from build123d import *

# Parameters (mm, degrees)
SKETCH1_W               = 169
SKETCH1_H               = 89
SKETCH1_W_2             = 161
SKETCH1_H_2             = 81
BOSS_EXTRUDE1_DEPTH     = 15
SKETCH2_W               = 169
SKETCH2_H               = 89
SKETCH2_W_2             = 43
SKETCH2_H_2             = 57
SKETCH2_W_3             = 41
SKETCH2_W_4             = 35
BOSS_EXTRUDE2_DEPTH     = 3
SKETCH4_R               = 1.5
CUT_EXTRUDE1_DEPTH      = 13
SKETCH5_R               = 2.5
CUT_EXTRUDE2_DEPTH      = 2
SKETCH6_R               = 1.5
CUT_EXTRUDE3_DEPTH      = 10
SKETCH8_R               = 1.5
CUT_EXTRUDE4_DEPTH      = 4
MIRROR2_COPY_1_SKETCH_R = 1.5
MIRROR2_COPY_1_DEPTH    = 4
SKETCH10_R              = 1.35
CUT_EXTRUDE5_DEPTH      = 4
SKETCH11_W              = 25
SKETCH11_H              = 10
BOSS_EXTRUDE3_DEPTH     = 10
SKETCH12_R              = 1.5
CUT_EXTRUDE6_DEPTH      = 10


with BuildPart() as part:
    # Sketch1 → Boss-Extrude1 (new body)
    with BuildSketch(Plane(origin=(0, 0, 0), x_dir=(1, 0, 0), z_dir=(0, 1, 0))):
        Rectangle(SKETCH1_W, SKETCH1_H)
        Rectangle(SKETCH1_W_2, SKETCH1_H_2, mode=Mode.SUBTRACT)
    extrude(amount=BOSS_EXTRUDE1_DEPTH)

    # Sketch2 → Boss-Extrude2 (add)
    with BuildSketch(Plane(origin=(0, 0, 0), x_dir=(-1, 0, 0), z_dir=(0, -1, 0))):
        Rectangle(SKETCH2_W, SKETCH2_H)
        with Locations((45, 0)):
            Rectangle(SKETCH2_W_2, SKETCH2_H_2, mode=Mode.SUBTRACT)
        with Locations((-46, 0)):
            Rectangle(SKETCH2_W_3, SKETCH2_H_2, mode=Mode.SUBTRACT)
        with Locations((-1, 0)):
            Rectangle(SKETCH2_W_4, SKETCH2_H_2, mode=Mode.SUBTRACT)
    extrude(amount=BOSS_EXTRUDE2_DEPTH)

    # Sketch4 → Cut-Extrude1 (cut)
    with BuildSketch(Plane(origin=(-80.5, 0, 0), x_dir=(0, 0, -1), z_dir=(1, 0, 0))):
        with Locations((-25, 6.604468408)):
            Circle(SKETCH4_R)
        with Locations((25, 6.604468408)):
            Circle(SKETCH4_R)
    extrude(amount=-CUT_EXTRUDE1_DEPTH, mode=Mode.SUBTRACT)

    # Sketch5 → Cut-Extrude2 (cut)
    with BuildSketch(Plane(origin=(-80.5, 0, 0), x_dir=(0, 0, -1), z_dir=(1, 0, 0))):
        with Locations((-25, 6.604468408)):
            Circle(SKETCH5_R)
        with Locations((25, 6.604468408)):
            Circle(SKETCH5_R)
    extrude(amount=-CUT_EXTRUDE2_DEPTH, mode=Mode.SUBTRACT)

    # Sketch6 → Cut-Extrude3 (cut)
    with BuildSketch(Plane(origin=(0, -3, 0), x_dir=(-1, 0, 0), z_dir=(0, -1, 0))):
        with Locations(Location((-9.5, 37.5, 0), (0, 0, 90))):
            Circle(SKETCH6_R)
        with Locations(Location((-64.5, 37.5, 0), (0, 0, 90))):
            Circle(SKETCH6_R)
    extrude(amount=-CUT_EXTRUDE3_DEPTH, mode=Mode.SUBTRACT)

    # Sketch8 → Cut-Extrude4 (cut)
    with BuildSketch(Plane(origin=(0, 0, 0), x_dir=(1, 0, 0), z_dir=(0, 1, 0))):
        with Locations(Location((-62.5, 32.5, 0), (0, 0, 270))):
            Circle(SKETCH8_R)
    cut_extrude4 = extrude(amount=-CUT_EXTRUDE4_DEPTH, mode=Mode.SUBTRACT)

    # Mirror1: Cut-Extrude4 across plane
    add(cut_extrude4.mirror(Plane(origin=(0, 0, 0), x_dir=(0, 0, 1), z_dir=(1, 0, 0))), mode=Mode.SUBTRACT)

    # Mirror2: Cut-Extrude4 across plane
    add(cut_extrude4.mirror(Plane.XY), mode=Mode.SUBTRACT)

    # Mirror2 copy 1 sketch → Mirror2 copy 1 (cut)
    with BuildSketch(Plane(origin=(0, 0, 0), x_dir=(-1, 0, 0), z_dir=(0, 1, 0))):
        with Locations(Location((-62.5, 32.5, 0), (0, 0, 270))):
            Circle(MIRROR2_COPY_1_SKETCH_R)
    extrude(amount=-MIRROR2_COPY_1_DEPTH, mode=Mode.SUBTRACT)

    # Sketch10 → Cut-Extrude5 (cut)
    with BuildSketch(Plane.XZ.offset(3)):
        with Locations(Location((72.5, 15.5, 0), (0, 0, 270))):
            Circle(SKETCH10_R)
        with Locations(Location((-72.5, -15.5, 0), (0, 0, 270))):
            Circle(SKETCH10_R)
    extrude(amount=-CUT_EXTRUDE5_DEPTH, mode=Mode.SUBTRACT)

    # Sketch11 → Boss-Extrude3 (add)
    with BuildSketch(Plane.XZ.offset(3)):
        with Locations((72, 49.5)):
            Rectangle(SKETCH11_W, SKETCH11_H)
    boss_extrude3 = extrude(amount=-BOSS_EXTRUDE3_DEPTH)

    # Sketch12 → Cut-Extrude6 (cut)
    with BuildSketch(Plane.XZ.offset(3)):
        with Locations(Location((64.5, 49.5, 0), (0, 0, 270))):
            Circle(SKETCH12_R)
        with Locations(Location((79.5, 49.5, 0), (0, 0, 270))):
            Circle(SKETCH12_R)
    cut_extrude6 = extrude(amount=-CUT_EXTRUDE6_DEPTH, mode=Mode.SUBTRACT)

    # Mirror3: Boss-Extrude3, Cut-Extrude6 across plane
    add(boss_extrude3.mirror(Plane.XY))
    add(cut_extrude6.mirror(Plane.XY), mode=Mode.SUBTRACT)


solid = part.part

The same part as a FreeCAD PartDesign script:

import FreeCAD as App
import Part
import Sketcher


def add_polygon(sketch, points):
    """Adds a closed chain of lines whose ends are joined by coincident constraints."""
    first, n = sketch.GeometryCount, len(points)
    for a, b in zip(points, points[1:] + points[:1]):
        sketch.addGeometry(Part.LineSegment(App.Vector(*a, 0), App.Vector(*b, 0)), False)
    for i in range(n):
        sketch.addConstraint(Sketcher.Constraint("Coincident", first + i, 2, first + (i + 1) % n, 1))

doc = App.newDocument("Part")
params = doc.addObject("Spreadsheet::Sheet", "Params")
for row, (alias, value) in enumerate([
    ("sketch1_width", "169 mm"),
    ("sketch1_width2", "161 mm"),
    ("sketch1_height", "89 mm"),
    ("sketch1_height2", "81 mm"),
    ("pad1_length", "15 mm"),
    ("sketch2_width", "169 mm"),
    ("sketch2_width2", "41 mm"),
    ("sketch2_width3", "35 mm"),
    ("sketch2_width4", "43 mm"),
    ("sketch2_height", "89 mm"),
    ("pad2_length", "3 mm"),
    ("sketch3_diameter", "3 mm"),
    ("pocket1_length", "13 mm"),
    ("sketch4_diameter", "5 mm"),
    ("pocket2_length", "2 mm"),
    ("sketch5_diameter", "3 mm"),
    ("pocket3_length", "10 mm"),
    ("sketch6_diameter", "3 mm"),
    ("pocket4_length", "4 mm"),
    ("sketch7_diameter", "3 mm"),
    ("pocket5_length", "4 mm"),
    ("sketch8_diameter", "2.7 mm"),
    ("pocket6_length", "4 mm"),
    ("sketch9_width", "25 mm"),
    ("sketch9_height", "10 mm"),
    ("pad3_length", "10 mm"),
    ("sketch10_diameter", "3 mm"),
    ("pocket7_length", "10 mm"),
], start=1):
    params.set(f"A{row}", alias)
    params.set(f"B{row}", "=" + value)
    params.setAlias(f"B{row}", alias)

body = doc.addObject("PartDesign::Body", "Body")

sketch1 = body.newObject("Sketcher::SketchObject", "Sketch")
sketch1.AttachmentSupport = (doc.getObject("XZ_Plane"), [""])
sketch1.MapMode = "FlatFace"
add_polygon(sketch1, [(-84, -44), (-84, 44), (84, 44), (84, -44)])
add_polygon(sketch1, [(80, 40), (-80, 40), (-80, -40), (80, -40)])
sketch1.addConstraint(Sketcher.Constraint("Vertical", 0))
sketch1.addConstraint(Sketcher.Constraint("Horizontal", 1))
sketch1.addConstraint(Sketcher.Constraint("Vertical", 2))
sketch1.addConstraint(Sketcher.Constraint("Horizontal", 3))
sketch1.addConstraint(Sketcher.Constraint("Horizontal", 4))
sketch1.addConstraint(Sketcher.Constraint("Vertical", 5))
sketch1.addConstraint(Sketcher.Constraint("Horizontal", 6))
sketch1.addConstraint(Sketcher.Constraint("Vertical", 7))
sketch1.addConstraint(Sketcher.Constraint("Symmetric", 0, 2, 2, 2, -1, 1))
sketch1.addConstraint(Sketcher.Constraint("Symmetric", 4, 2, 6, 2, -1, 1))
sketch1.addConstraint(Sketcher.Constraint("DistanceX", 1, 1, 1, 2, 169.0))
sketch1.addConstraint(Sketcher.Constraint("DistanceX", 4, 2, 4, 1, 161.0))
sketch1.addConstraint(Sketcher.Constraint("DistanceY", 0, 1, 0, 2, 89.0))
sketch1.addConstraint(Sketcher.Constraint("DistanceY", 5, 2, 5, 1, 81.0))
sketch1.setExpression("Constraints[18]", "Params.sketch1_width")
sketch1.setExpression("Constraints[19]", "Params.sketch1_width2")
sketch1.setExpression("Constraints[20]", "Params.sketch1_height")
sketch1.setExpression("Constraints[21]", "Params.sketch1_height2")
pad1 = body.newObject("PartDesign::Pad", "Pad")
pad1.Profile = sketch1
pad1.setExpression("Length", "Params.pad1_length")
pad1.Reversed = True

sketch2 = body.newObject("Sketcher::SketchObject", "Sketch001")
sketch2.AttachmentSupport = (doc.getObject("XZ_Plane"), [""])
sketch2.MapMode = "FlatFace"
add_polygon(sketch2, [(84, -44), (84, 44), (-84, 44), (-84, -44)])
add_polygon(sketch2, [(26, 28), (66, 28), (66, -28), (26, -28)])
add_polygon(sketch2, [(-16, 28), (18, 28), (18, -28), (-16, -28)])
add_polygon(sketch2, [(-66, 28), (-24, 28), (-24, -28), (-66, -28)])
sketch2.addConstraint(Sketcher.Constraint("Vertical", 0))
sketch2.addConstraint(Sketcher.Constraint("Horizontal", 1))
sketch2.addConstraint(Sketcher.Constraint("Vertical", 2))
sketch2.addConstraint(Sketcher.Constraint("Horizontal", 3))
sketch2.addConstraint(Sketcher.Constraint("Horizontal", 4))
sketch2.addConstraint(Sketcher.Constraint("Vertical", 5))
sketch2.addConstraint(Sketcher.Constraint("Horizontal", 6))
sketch2.addConstraint(Sketcher.Constraint("Vertical", 7))
sketch2.addConstraint(Sketcher.Constraint("Horizontal", 8))
sketch2.addConstraint(Sketcher.Constraint("Vertical", 9))
sketch2.addConstraint(Sketcher.Constraint("Horizontal", 10))
sketch2.addConstraint(Sketcher.Constraint("Vertical", 11))
sketch2.addConstraint(Sketcher.Constraint("Horizontal", 12))
sketch2.addConstraint(Sketcher.Constraint("Vertical", 13))
sketch2.addConstraint(Sketcher.Constraint("Horizontal", 14))
sketch2.addConstraint(Sketcher.Constraint("Vertical", 15))
sketch2.addConstraint(Sketcher.Constraint("Symmetric", 0, 2, 2, 2, -1, 1))
sketch2.addConstraint(Sketcher.Constraint("Symmetric", 4, 2, 14, 2, -1, 1))
sketch2.addConstraint(Sketcher.Constraint("Horizontal", 7, 2, 8, 2))
sketch2.addConstraint(Sketcher.Constraint("Horizontal", 6, 2, 9, 2))
sketch2.addConstraint(Sketcher.Constraint("Horizontal", 11, 2, 12, 2))
sketch2.addConstraint(Sketcher.Constraint("Horizontal", 10, 2, 13, 2))
sketch2.addConstraint(Sketcher.Constraint("DistanceX", 1, 2, 1, 1, 169.0))
sketch2.addConstraint(Sketcher.Constraint("DistanceX", 4, 1, 4, 2, 41.0))
sketch2.addConstraint(Sketcher.Constraint("DistanceX", 8, 1, 8, 2, 35.0))
sketch2.addConstraint(Sketcher.Constraint("DistanceX", 12, 1, 12, 2, 43.0))
sketch2.addConstraint(Sketcher.Constraint("DistanceY", 0, 1, 0, 2, 89.0))
sketch2.addConstraint(Sketcher.Constraint("DistanceY", 5, 2, 5, 1, 57.0))
sketch2.addConstraint(Sketcher.Constraint("DistanceX", 4, 2, 0, 2, 18.0))
sketch2.addConstraint(Sketcher.Constraint("DistanceX", 8, 2, 7, 2, 7.0))
sketch2.setExpression("Constraints[38]", "Params.sketch2_width")
sketch2.setExpression("Constraints[39]", "Params.sketch2_width2")
sketch2.setExpression("Constraints[40]", "Params.sketch2_width3")
sketch2.setExpression("Constraints[41]", "Params.sketch2_width4")
sketch2.setExpression("Constraints[42]", "Params.sketch2_height")
pad2 = body.newObject("PartDesign::Pad", "Pad001")
pad2.Profile = sketch2
pad2.setExpression("Length", "Params.pad2_length")

sketch3 = body.newObject("Sketcher::SketchObject", "Sketch002")
sketch3.AttachmentSupport = (doc.getObject("YZ_Plane"), [""])
sketch3.MapMode = "FlatFace"
sketch3.AttachmentOffset = App.Placement(App.Vector(0, 0, -80.5), App.Rotation())
sketch3.addGeometry(Part.Circle(App.Vector(6.6, 25, 0), App.Vector(0, 0, 1), 1.5), False)
sketch3.addGeometry(Part.Circle(App.Vector(6.6, -25, 0), App.Vector(0, 0, 1), 1.5), False)
sketch3.addConstraint(Sketcher.Constraint("Equal", 0, 1))
sketch3.addConstraint(Sketcher.Constraint("Symmetric", 0, 3, 1, 3, -1))
sketch3.addConstraint(Sketcher.Constraint("Diameter", 0, 3.0))
sketch3.addConstraint(Sketcher.Constraint("DistanceY", -1, 1, 0, 3, 25.0))
sketch3.addConstraint(Sketcher.Constraint("DistanceX", -1, 1, 0, 3, 6.604468))
sketch3.setExpression("Constraints[2]", "Params.sketch3_diameter")
pocket1 = body.newObject("PartDesign::Pocket", "Pocket")
pocket1.Profile = sketch3
pocket1.setExpression("Length", "Params.pocket1_length")

sketch4 = body.newObject("Sketcher::SketchObject", "Sketch003")
sketch4.AttachmentSupport = (doc.getObject("YZ_Plane"), [""])
sketch4.MapMode = "FlatFace"
sketch4.AttachmentOffset = App.Placement(App.Vector(0, 0, -80.5), App.Rotation())
sketch4.addGeometry(Part.Circle(App.Vector(6.6, 25, 0), App.Vector(0, 0, 1), 2.5), False)
sketch4.addGeometry(Part.Circle(App.Vector(6.6, -25, 0), App.Vector(0, 0, 1), 2.5), False)
sketch4.addConstraint(Sketcher.Constraint("Equal", 0, 1))
sketch4.addConstraint(Sketcher.Constraint("Symmetric", 0, 3, 1, 3, -1))
sketch4.addConstraint(Sketcher.Constraint("Diameter", 0, 5.0))
sketch4.addConstraint(Sketcher.Constraint("DistanceY", -1, 1, 0, 3, 25.0))
sketch4.addConstraint(Sketcher.Constraint("DistanceX", -1, 1, 0, 3, 6.604468))
sketch4.setExpression("Constraints[2]", "Params.sketch4_diameter")
pocket2 = body.newObject("PartDesign::Pocket", "Pocket001")
pocket2.Profile = sketch4
pocket2.setExpression("Length", "Params.pocket2_length")

sketch5 = body.newObject("Sketcher::SketchObject", "Sketch004")
sketch5.AttachmentSupport = (doc.getObject("XZ_Plane"), [""])
sketch5.MapMode = "FlatFace"
sketch5.AttachmentOffset = App.Placement(App.Vector(0, 0, 3), App.Rotation())
sketch5.addGeometry(Part.Circle(App.Vector(9.5, -37.5, 0), App.Vector(0, 0, 1), 1.5), False)
sketch5.addGeometry(Part.Circle(App.Vector(64.5, -37.5, 0), App.Vector(0, 0, 1), 1.5), False)
sketch5.addConstraint(Sketcher.Constraint("Equal", 0, 1))
sketch5.addConstraint(Sketcher.Constraint("Horizontal", 0, 3, 1, 3))
sketch5.addConstraint(Sketcher.Constraint("Diameter", 0, 3.0))
sketch5.addConstraint(Sketcher.Constraint("DistanceX", 0, 3, 1, 3, 55.0))
sketch5.addConstraint(Sketcher.Constraint("DistanceX", -1, 1, 0, 3, 9.5))
sketch5.addConstraint(Sketcher.Constraint("DistanceY", 0, 3, -1, 1, 37.5))
sketch5.setExpression("Constraints[2]", "Params.sketch5_diameter")
pocket3 = body.newObject("PartDesign::Pocket", "Pocket002")
pocket3.Profile = sketch5
pocket3.setExpression("Length", "Params.pocket3_length")

sketch6 = body.newObject("Sketcher::SketchObject", "Sketch005")
sketch6.AttachmentSupport = (doc.getObject("XZ_Plane"), [""])
sketch6.MapMode = "FlatFace"
sketch6.addGeometry(Part.Circle(App.Vector(-62.5, -32.5, 0), App.Vector(0, 0, 1), 1.5), False)
sketch6.addConstraint(Sketcher.Constraint("Diameter", 0, 3.0))
sketch6.addConstraint(Sketcher.Constraint("DistanceX", 0, 3, -1, 1, 62.5))
sketch6.addConstraint(Sketcher.Constraint("DistanceY", 0, 3, -1, 1, 32.5))
sketch6.setExpression("Constraints[0]", "Params.sketch6_diameter")
pocket4 = body.newObject("PartDesign::Pocket", "Pocket003")
pocket4.Profile = sketch6
pocket4.setExpression("Length", "Params.pocket4_length")
pocket4.Reversed = True
doc.recompute()

mirrored = body.newObject("PartDesign::Mirrored", "Mirrored")
mirrored.Originals = [pocket4]
mirrored.MirrorPlane = (doc.getObject("YZ_Plane"), [""])
body.Tip = mirrored
doc.recompute()

mirrored2 = body.newObject("PartDesign::Mirrored", "Mirrored001")
mirrored2.Originals = [pocket4]
mirrored2.MirrorPlane = (doc.getObject("XY_Plane"), [""])
body.Tip = mirrored2

sketch7 = body.newObject("Sketcher::SketchObject", "Sketch006")
sketch7.AttachmentSupport = (doc.getObject("XZ_Plane"), [""])
sketch7.MapMode = "FlatFace"
sketch7.addGeometry(Part.Circle(App.Vector(62.5, 32.5, 0), App.Vector(0, 0, 1), 1.5), False)
sketch7.addConstraint(Sketcher.Constraint("Diameter", 0, 3.0))
sketch7.addConstraint(Sketcher.Constraint("DistanceX", -1, 1, 0, 3, 62.5))
sketch7.addConstraint(Sketcher.Constraint("DistanceY", -1, 1, 0, 3, 32.5))
sketch7.setExpression("Constraints[0]", "Params.sketch7_diameter")
pocket5 = body.newObject("PartDesign::Pocket", "Pocket004")
pocket5.Profile = sketch7
pocket5.setExpression("Length", "Params.pocket5_length")
pocket5.Reversed = True

sketch8 = body.newObject("Sketcher::SketchObject", "Sketch007")
sketch8.AttachmentSupport = (doc.getObject("XZ_Plane"), [""])
sketch8.MapMode = "FlatFace"
sketch8.AttachmentOffset = App.Placement(App.Vector(0, 0, 3), App.Rotation())
sketch8.addGeometry(Part.Circle(App.Vector(72.5, 15.5, 0), App.Vector(0, 0, 1), 1.4), False)
sketch8.addGeometry(Part.Circle(App.Vector(-72.5, -15.5, 0), App.Vector(0, 0, 1), 1.4), False)
sketch8.addConstraint(Sketcher.Constraint("Equal", 0, 1))
sketch8.addConstraint(Sketcher.Constraint("Symmetric", 0, 3, 1, 3, -1, 1))
sketch8.addConstraint(Sketcher.Constraint("Diameter", 0, 2.7))
sketch8.addConstraint(Sketcher.Constraint("DistanceX", 1, 3, 0, 3, 145.0))
sketch8.addConstraint(Sketcher.Constraint("DistanceY", 1, 3, 0, 3, 31.0))
sketch8.setExpression("Constraints[2]", "Params.sketch8_diameter")
pocket6 = body.newObject("PartDesign::Pocket", "Pocket005")
pocket6.Profile = sketch8
pocket6.setExpression("Length", "Params.pocket6_length")

sketch9 = body.newObject("Sketcher::SketchObject", "Sketch008")
sketch9.AttachmentSupport = (doc.getObject("XZ_Plane"), [""])
sketch9.MapMode = "FlatFace"
sketch9.AttachmentOffset = App.Placement(App.Vector(0, 0, 3), App.Rotation())
add_polygon(sketch9, [(60, 54), (60, 44), (84, 44), (84, 54)])
sketch9.addConstraint(Sketcher.Constraint("Vertical", 0))
sketch9.addConstraint(Sketcher.Constraint("Horizontal", 1))
sketch9.addConstraint(Sketcher.Constraint("Vertical", 2))
sketch9.addConstraint(Sketcher.Constraint("Horizontal", 3))
sketch9.addConstraint(Sketcher.Constraint("DistanceX", 1, 1, 1, 2, 25.0))
sketch9.addConstraint(Sketcher.Constraint("DistanceY", 0, 2, 0, 1, 10.0))
sketch9.addConstraint(Sketcher.Constraint("DistanceX", -1, 1, 0, 2, 59.5))
sketch9.addConstraint(Sketcher.Constraint("DistanceY", -1, 1, 0, 2, 44.5))
sketch9.setExpression("Constraints[8]", "Params.sketch9_width")
sketch9.setExpression("Constraints[9]", "Params.sketch9_height")
pad3 = body.newObject("PartDesign::Pad", "Pad002")
pad3.Profile = sketch9
pad3.setExpression("Length", "Params.pad3_length")
pad3.Reversed = True

sketch10 = body.newObject("Sketcher::SketchObject", "Sketch009")
sketch10.AttachmentSupport = (doc.getObject("XZ_Plane"), [""])
sketch10.MapMode = "FlatFace"
sketch10.AttachmentOffset = App.Placement(App.Vector(0, 0, 3), App.Rotation())
sketch10.addGeometry(Part.Circle(App.Vector(64.5, 49.5, 0), App.Vector(0, 0, 1), 1.5), False)
sketch10.addGeometry(Part.Circle(App.Vector(79.5, 49.5, 0), App.Vector(0, 0, 1), 1.5), False)
sketch10.addConstraint(Sketcher.Constraint("Equal", 0, 1))
sketch10.addConstraint(Sketcher.Constraint("Horizontal", 0, 3, 1, 3))
sketch10.addConstraint(Sketcher.Constraint("Diameter", 0, 3.0))
sketch10.addConstraint(Sketcher.Constraint("DistanceX", 0, 3, 1, 3, 15.0))
sketch10.addConstraint(Sketcher.Constraint("DistanceX", -1, 1, 0, 3, 64.5))
sketch10.addConstraint(Sketcher.Constraint("DistanceY", -1, 1, 0, 3, 49.5))
sketch10.setExpression("Constraints[2]", "Params.sketch10_diameter")
pocket7 = body.newObject("PartDesign::Pocket", "Pocket006")
pocket7.Profile = sketch10
pocket7.setExpression("Length", "Params.pocket7_length")
doc.recompute()

mirrored3 = body.newObject("PartDesign::Mirrored", "Mirrored002")
mirrored3.Originals = [pad3, pocket7]
mirrored3.MirrorPlane = (doc.getObject("XY_Plane"), [""])
body.Tip = mirrored3

doc.recompute()
